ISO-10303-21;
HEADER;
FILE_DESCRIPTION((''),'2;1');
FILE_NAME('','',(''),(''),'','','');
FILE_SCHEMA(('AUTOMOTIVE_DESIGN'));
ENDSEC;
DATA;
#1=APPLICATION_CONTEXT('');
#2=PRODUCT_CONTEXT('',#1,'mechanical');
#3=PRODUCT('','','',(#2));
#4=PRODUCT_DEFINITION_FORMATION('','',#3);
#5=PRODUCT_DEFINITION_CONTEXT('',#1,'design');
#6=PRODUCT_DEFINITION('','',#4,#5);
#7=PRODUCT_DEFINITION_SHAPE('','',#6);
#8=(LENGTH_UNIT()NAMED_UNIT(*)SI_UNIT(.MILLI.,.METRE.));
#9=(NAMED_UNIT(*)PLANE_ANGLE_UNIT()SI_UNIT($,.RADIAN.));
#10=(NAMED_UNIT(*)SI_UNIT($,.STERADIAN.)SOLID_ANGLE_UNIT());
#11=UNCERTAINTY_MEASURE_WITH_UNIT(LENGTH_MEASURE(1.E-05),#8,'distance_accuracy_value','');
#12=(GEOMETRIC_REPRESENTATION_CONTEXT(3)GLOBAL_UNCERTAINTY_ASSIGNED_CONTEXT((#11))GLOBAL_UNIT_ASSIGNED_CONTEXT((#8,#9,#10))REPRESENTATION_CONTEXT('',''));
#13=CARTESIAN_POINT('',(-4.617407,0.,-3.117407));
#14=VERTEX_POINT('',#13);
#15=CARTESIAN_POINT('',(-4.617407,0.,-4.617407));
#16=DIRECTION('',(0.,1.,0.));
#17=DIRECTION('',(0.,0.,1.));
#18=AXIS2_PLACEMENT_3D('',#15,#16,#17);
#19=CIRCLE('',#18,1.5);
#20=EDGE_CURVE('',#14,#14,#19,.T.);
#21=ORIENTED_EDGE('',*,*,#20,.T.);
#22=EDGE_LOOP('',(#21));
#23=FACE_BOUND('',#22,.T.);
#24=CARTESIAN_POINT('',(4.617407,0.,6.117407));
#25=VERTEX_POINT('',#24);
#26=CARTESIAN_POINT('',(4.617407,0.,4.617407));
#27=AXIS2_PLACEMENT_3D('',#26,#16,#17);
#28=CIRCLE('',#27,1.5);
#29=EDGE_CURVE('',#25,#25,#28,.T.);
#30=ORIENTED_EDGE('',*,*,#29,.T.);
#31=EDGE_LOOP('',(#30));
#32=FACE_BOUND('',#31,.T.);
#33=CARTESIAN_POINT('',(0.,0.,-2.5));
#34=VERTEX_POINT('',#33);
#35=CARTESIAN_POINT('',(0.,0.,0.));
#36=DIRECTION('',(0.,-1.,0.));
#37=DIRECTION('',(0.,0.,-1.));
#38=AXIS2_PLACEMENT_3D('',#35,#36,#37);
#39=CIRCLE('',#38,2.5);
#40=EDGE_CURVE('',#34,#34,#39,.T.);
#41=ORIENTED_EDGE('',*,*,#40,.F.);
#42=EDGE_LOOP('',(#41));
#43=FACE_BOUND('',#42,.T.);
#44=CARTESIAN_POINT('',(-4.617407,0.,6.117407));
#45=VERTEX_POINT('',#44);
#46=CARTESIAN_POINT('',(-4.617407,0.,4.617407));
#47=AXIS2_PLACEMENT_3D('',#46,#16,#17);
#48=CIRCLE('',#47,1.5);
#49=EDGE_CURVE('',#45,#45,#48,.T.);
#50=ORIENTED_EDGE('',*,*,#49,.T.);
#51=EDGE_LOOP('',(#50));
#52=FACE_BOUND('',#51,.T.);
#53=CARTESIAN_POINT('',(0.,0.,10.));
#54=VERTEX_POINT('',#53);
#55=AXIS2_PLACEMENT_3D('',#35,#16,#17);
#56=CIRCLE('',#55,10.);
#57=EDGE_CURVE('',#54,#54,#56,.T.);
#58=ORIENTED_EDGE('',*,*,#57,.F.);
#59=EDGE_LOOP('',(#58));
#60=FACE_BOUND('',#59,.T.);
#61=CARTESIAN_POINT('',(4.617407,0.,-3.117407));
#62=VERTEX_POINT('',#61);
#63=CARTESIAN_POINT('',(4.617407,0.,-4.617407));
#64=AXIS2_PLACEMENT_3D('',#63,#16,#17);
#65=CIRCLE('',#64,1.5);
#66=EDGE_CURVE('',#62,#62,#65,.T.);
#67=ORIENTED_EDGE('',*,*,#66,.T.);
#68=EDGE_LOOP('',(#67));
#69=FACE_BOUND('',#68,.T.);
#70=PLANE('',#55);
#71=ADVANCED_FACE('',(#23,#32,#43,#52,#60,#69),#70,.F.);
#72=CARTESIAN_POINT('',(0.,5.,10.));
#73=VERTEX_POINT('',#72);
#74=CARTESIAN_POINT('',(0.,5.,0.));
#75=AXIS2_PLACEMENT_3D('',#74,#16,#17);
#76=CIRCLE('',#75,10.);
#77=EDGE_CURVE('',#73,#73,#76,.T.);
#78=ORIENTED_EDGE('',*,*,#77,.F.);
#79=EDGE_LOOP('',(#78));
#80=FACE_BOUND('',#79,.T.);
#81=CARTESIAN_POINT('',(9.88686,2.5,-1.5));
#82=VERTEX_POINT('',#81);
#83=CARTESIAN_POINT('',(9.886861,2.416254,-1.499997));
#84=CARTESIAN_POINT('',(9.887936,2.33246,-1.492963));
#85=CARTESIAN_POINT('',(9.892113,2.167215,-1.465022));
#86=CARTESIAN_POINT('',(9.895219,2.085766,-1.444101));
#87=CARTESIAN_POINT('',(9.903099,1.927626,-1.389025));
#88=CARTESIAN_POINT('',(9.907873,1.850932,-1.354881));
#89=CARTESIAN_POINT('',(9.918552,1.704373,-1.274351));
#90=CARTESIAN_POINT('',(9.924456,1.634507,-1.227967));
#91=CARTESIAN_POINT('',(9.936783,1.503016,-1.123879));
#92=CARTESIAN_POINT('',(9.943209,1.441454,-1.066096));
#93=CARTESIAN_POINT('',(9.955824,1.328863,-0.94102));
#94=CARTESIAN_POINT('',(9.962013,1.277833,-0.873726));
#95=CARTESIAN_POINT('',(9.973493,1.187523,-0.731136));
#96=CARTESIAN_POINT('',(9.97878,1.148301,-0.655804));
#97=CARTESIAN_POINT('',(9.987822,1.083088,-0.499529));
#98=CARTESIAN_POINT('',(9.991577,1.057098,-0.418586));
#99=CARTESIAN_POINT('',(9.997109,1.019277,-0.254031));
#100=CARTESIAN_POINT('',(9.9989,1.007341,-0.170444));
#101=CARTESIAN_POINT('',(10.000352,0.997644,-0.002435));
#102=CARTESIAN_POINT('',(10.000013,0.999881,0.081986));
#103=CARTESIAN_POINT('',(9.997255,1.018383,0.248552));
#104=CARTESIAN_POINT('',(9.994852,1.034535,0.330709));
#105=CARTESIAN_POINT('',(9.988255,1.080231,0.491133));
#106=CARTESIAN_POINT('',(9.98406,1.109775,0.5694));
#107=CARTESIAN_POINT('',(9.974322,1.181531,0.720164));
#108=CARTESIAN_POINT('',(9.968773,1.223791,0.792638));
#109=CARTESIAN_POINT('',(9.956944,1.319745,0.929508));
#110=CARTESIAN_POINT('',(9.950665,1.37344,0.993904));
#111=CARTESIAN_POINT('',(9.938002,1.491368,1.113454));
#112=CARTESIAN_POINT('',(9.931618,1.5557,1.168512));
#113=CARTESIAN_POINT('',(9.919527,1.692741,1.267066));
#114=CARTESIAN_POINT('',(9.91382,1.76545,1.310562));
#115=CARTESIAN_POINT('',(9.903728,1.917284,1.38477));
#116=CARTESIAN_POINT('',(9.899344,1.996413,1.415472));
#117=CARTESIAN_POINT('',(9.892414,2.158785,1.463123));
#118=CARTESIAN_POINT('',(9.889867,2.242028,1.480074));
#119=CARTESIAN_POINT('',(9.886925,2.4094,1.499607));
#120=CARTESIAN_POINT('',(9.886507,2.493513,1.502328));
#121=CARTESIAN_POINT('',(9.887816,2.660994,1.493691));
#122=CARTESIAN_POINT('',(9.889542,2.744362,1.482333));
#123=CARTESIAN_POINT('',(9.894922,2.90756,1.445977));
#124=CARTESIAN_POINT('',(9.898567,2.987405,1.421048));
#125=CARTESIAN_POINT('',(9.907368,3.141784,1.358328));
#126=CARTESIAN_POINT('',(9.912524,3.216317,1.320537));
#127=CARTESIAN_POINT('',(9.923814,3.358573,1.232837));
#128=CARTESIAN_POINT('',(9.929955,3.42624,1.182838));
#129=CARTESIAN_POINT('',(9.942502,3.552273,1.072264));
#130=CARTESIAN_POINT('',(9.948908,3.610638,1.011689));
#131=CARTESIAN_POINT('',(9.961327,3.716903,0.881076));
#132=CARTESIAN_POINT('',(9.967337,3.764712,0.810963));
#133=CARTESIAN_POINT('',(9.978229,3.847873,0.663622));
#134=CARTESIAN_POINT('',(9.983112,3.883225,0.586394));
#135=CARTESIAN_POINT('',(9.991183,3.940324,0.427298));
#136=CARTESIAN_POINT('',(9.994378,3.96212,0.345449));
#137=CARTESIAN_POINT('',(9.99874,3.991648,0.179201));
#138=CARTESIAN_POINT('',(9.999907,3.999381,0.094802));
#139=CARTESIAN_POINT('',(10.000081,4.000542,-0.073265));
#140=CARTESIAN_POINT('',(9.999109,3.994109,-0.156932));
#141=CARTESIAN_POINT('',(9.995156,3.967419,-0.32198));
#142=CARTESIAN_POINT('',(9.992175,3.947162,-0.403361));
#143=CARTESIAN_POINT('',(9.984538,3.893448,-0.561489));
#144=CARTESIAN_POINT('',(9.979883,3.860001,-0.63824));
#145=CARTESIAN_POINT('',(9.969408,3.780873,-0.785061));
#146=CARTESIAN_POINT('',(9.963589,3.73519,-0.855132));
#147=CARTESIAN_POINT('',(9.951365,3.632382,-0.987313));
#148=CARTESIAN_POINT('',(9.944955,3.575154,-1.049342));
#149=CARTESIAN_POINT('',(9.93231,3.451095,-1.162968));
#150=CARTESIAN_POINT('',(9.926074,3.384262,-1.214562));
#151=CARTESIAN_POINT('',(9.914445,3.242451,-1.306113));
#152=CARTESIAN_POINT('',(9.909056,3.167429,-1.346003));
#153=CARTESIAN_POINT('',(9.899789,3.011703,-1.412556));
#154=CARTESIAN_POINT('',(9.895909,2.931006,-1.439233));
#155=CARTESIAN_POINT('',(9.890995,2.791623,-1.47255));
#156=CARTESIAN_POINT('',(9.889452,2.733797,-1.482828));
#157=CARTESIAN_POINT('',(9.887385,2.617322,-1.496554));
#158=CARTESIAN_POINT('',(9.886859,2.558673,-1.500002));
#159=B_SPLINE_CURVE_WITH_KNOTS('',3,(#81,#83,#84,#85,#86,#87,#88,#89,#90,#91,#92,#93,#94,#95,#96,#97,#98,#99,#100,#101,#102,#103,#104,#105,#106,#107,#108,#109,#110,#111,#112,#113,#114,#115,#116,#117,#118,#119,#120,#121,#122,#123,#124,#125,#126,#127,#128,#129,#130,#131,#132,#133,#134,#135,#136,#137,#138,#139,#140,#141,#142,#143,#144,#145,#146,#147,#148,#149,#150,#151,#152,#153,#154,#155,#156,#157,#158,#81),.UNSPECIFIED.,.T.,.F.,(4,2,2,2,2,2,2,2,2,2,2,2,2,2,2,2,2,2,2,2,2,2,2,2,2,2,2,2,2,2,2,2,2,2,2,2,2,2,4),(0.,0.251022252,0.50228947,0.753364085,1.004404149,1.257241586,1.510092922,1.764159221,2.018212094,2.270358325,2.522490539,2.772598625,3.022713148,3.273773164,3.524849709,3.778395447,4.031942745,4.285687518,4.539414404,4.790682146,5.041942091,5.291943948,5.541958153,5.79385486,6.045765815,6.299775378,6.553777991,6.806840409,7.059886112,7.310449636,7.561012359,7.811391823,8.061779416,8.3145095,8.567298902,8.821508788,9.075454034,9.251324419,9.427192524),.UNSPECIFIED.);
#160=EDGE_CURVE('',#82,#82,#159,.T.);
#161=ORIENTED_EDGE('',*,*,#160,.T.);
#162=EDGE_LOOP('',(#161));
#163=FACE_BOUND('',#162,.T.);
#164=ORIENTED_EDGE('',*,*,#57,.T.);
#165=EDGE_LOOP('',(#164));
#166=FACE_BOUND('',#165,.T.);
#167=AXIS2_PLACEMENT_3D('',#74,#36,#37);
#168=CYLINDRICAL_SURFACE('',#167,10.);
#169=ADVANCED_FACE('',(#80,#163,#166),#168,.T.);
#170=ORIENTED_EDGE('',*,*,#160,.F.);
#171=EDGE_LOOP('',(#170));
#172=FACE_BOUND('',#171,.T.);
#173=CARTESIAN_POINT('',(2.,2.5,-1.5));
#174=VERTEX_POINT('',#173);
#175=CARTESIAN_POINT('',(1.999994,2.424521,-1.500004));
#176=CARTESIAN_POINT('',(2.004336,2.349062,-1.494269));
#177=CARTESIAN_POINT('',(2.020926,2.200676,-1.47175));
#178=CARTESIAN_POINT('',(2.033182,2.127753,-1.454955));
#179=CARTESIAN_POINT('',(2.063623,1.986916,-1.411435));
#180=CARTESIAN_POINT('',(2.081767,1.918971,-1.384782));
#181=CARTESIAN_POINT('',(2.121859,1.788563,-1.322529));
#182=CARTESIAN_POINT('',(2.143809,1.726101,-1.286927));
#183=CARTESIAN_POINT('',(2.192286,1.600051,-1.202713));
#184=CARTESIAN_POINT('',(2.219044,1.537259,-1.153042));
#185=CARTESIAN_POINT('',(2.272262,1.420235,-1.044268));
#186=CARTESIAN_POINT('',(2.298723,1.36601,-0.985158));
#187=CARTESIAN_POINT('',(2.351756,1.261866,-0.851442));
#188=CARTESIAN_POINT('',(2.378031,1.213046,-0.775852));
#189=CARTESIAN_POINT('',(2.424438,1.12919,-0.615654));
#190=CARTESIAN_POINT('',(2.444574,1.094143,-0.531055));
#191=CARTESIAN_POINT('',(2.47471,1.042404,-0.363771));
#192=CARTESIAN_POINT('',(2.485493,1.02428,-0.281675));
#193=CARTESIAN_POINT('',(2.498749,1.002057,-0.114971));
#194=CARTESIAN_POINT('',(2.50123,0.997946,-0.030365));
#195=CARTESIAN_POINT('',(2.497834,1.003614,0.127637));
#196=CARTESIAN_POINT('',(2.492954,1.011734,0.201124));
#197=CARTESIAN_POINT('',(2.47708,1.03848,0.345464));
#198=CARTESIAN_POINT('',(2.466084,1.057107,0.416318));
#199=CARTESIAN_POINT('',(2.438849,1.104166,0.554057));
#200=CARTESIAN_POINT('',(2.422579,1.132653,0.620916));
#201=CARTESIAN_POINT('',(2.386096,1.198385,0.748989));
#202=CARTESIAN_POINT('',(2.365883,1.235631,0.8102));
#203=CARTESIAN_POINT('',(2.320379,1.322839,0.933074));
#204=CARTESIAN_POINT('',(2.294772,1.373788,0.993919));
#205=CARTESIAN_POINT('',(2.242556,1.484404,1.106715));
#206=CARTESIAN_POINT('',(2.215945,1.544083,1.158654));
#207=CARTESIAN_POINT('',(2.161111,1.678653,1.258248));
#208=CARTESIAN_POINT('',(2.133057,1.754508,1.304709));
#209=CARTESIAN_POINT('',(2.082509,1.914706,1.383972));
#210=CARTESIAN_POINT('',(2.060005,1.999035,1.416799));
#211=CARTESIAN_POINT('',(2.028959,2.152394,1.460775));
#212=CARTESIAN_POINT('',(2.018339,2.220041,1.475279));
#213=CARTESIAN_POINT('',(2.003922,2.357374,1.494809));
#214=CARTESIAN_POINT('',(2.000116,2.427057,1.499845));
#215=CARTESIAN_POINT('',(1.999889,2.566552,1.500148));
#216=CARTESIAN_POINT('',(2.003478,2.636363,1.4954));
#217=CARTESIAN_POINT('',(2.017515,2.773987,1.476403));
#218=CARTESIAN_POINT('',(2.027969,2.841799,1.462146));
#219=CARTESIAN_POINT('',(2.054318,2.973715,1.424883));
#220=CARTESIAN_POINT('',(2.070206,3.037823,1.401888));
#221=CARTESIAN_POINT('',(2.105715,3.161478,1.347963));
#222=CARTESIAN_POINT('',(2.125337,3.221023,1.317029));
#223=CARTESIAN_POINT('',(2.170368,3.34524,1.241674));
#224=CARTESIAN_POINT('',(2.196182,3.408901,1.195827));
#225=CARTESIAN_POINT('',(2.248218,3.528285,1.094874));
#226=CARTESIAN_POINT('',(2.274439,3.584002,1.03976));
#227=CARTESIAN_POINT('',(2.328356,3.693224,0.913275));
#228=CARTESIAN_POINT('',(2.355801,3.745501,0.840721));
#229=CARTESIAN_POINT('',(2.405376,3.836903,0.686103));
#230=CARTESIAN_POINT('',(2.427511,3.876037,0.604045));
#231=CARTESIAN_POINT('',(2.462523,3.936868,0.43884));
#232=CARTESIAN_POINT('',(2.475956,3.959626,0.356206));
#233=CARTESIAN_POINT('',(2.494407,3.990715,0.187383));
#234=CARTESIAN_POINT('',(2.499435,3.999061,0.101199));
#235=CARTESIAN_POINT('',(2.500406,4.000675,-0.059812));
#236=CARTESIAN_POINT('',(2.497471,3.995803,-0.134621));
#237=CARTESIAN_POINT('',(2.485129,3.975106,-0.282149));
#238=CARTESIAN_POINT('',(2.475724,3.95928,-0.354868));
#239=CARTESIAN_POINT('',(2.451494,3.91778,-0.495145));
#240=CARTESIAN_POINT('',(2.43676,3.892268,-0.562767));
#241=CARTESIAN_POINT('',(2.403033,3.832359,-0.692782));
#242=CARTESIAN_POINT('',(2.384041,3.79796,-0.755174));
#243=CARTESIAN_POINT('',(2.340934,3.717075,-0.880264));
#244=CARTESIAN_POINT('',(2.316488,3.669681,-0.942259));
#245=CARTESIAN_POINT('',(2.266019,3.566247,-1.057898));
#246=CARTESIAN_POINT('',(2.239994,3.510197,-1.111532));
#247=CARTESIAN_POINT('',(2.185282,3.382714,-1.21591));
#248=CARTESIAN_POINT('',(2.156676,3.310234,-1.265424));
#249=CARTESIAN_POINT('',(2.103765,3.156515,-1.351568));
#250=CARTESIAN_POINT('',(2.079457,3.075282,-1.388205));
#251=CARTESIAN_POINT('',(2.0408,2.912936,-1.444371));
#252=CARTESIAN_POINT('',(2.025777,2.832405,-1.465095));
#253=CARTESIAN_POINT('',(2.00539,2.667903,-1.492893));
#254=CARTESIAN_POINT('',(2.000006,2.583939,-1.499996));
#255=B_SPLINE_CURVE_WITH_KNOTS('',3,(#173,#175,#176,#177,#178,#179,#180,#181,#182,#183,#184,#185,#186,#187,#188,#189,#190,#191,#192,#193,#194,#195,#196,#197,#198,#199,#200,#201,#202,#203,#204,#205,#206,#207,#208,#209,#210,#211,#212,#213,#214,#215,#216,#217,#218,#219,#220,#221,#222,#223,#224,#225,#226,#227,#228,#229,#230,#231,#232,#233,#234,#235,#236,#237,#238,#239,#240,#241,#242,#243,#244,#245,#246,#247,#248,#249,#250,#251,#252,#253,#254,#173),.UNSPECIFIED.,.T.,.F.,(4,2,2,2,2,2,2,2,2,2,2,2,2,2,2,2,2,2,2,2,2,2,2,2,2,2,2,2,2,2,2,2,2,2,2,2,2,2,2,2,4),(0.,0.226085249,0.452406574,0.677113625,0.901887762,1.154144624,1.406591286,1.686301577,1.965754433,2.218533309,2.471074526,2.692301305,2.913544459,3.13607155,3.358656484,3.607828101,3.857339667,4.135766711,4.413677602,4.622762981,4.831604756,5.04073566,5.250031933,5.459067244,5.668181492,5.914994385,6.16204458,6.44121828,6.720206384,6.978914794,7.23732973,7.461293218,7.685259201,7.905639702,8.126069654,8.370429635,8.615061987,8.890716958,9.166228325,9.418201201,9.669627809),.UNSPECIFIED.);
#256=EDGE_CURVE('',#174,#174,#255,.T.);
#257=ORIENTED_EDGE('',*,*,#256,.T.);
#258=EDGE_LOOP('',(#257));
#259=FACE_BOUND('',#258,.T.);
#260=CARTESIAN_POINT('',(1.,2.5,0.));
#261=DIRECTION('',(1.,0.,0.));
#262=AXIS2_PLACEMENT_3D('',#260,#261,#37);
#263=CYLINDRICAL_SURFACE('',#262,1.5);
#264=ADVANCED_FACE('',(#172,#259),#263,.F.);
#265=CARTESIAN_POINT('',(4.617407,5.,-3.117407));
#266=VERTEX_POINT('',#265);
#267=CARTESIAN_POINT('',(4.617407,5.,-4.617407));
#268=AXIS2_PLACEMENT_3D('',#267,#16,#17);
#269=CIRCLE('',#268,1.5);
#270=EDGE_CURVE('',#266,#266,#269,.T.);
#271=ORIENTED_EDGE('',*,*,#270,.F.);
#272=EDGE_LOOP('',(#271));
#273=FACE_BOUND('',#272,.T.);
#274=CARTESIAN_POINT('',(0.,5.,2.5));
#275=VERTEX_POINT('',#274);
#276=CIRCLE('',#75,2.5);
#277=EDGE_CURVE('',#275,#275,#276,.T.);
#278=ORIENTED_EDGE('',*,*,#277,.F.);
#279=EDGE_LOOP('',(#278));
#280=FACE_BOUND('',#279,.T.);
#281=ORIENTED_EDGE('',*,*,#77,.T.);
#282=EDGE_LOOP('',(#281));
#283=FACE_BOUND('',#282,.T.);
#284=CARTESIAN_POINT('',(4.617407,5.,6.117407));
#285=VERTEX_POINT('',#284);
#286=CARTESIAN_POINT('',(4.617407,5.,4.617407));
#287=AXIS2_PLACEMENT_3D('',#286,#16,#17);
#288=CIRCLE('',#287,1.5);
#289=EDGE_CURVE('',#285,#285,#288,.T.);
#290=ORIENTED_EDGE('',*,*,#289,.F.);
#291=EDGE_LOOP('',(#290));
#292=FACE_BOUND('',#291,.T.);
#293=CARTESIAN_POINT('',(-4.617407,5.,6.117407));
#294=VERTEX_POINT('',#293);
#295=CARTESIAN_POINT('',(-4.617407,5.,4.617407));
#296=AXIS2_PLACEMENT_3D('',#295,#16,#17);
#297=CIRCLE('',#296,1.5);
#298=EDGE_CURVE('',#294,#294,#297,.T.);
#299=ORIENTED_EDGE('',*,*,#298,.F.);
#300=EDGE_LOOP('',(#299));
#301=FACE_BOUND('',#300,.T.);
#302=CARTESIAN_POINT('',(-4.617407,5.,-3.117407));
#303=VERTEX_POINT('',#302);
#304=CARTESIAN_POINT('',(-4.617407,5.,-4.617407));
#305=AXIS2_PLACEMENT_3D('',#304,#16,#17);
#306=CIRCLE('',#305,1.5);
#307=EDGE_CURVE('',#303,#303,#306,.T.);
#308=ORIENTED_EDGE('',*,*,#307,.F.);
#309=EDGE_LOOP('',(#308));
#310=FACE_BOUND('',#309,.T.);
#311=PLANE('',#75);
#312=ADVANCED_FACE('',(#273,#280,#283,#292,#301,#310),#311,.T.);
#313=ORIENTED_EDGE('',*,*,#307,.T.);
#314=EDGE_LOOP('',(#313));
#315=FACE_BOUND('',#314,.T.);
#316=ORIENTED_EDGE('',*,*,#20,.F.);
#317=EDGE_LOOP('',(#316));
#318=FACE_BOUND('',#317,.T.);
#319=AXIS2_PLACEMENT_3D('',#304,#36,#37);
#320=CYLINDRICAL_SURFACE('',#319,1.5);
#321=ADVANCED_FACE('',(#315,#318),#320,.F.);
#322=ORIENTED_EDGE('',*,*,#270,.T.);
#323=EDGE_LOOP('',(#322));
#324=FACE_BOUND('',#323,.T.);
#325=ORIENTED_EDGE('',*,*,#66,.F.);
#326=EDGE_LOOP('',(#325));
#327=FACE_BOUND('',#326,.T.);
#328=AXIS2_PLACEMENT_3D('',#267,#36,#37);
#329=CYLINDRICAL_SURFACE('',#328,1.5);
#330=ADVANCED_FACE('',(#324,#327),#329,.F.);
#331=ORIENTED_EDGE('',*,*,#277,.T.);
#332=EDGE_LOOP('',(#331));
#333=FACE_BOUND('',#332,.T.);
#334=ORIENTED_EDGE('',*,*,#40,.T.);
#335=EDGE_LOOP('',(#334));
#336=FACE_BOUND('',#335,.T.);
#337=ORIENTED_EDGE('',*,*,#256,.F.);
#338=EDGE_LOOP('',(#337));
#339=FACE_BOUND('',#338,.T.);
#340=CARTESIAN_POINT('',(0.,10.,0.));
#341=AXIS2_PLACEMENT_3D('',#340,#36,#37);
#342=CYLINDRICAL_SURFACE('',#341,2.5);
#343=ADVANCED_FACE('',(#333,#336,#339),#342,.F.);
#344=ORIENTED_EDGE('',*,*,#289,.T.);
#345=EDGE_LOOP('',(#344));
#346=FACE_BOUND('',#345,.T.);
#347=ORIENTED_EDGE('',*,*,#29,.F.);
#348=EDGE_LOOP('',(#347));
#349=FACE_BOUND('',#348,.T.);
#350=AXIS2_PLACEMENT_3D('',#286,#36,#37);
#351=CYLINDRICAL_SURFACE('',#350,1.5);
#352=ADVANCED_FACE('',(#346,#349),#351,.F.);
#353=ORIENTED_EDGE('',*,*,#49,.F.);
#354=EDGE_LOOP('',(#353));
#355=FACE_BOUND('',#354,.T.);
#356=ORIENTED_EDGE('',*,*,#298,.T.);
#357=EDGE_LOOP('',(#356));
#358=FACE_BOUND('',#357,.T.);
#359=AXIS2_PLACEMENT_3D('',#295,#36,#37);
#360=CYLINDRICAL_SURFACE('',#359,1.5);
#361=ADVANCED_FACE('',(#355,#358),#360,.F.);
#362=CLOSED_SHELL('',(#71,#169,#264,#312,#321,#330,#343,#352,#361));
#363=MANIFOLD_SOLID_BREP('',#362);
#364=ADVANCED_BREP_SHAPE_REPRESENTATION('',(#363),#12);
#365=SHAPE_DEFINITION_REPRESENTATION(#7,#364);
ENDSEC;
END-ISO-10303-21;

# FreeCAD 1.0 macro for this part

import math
import FreeCAD as App
import Part
import Sketcher
Q = App.Units.Quantity

doc = App.newDocument("Part")
params = doc.addObject("Spreadsheet::Sheet", "Params")
for row, (alias, value) in enumerate([
    ("sketch1_diameter", "3 mm"),
    ("sketch1_radius", "10 mm"),
    ("sketch1_radius2", "2 mm"),
    ("pad1_length", "5 mm"),
    ("sketch2_diameter", "3 mm"),
    ("pocket1_length", "9 mm"),
    ("sketch3_diameter", "5 mm"),
    ("pocket2_length", "10 mm"),
], start=1):
    params.set(f"A{row}", alias)
    params.set(f"B{row}", "=" + value)
    params.setAlias(f"B{row}", alias)

body = doc.addObject("PartDesign::Body", "Body")

sketch1 = body.newObject("Sketcher::SketchObject", "Sketch")
sketch1.AttachmentSupport = (doc.getObject("XZ_Plane"), [""])
sketch1.MapMode = "FlatFace"
sketch1.addGeometry([
    Part.ArcOfCircle(Part.Circle(App.Vector(0, 0, 0), App.Vector(0, 0, 1), 10), math.radians(-90), math.radians(-45)),
    Part.ArcOfCircle(Part.Circle(App.Vector(0, 0, 0), App.Vector(0, 0, 1), 10), math.radians(0), math.radians(270)),
    Part.ArcOfCircle(Part.Circle(App.Vector(0, 0, 0), App.Vector(0, 0, 1), 10), math.radians(-45), math.radians(0)),
    Part.ArcOfCircle(Part.Circle(App.Vector(0, 0, 0), App.Vector(0, 0, 1), 2), math.radians(-90), math.radians(-45)),
    Part.ArcOfCircle(Part.Circle(App.Vector(0, 0, 0), App.Vector(0, 0, 1), 2), math.radians(-45), math.radians(0)),
    Part.ArcOfCircle(Part.Circle(App.Vector(0, 0, 0), App.Vector(0, 0, 1), 2), math.radians(0), math.radians(270)),
    Part.ArcOfCircle(Part.Circle(App.Vector(4.6, -4.6, 0), App.Vector(0, 0, 1), 1.5), math.radians(135), math.radians(315)),
    Part.ArcOfCircle(Part.Circle(App.Vector(4.6, -4.6, 0), App.Vector(0, 0, 1), 1.5), math.radians(-45), math.radians(0)),
    Part.ArcOfCircle(Part.Circle(App.Vector(4.6, -4.6, 0), App.Vector(0, 0, 1), 1.5), math.radians(0), math.radians(135)),
    Part.Circle(App.Vector(-4.6, -4.6, 0), App.Vector(0, 0, 1), 1.5),
    Part.Circle(App.Vector(4.6, 4.6, 0), App.Vector(0, 0, 1), 1.5),
    Part.Circle(App.Vector(-4.6, 4.6, 0), App.Vector(0, 0, 1), 1.5),
], False)
sketch1.addConstraint([
    Sketcher.Constraint("Tangent", 0, 1, 1, 2),
    Sketcher.Constraint("Tangent", 1, 1, 2, 2),
    Sketcher.Constraint("Tangent", 2, 1, 0, 2),
    Sketcher.Constraint("Tangent", 3, 2, 4, 1),
    Sketcher.Constraint("Tangent", 4, 2, 5, 1),
    Sketcher.Constraint("Tangent", 5, 2, 3, 1),
    Sketcher.Constraint("Tangent", 6, 2, 7, 1),
    Sketcher.Constraint("Tangent", 7, 2, 8, 1),
    Sketcher.Constraint("Tangent", 8, 2, 6, 1),
    Sketcher.Constraint("Coincident", 0, 3, -1, 1),
    Sketcher.Constraint("Coincident", 3, 3, -1, 1),
    Sketcher.Constraint("Equal", 8, 9),
    Sketcher.Constraint("Equal", 9, 10),
    Sketcher.Constraint("Equal", 10, 11),
    Sketcher.Constraint("Symmetric", 9, 3, 10, 3, -1, 1),
    Sketcher.Constraint("Symmetric", 6, 3, 11, 3, -1, 1),
    Sketcher.Constraint("Symmetric", 6, 3, 9, 3, -2),
    Sketcher.Constraint("PointOnObject", 0, 1, -2),
    Sketcher.Constraint("PointOnObject", 1, 1, -1),
    Sketcher.Constraint("PointOnObject", 4, 2, -1),
    Sketcher.Constraint("PointOnObject", 5, 2, -2),
    Sketcher.Constraint("Horizontal", 9, 3, 7, 2),
    Sketcher.Constraint("Diameter", 9, Q("3 mm")),
    Sketcher.Constraint("Radius", 0, Q("10 mm")),
    Sketcher.Constraint("Radius", 3, Q("2 mm")),
    Sketcher.Constraint("DistanceX", 6, 2, 2, 1, Q("1.393 mm")),
    Sketcher.Constraint("DistanceY", 2, 1, 6, 2, Q("1.393 mm")),
    Sketcher.Constraint("DistanceX", 7, 3, 2, 1, Q("2.453661 mm")),
    Sketcher.Constraint("DistanceX", 8, 2, 6, 3, Q("1.06066 mm")),
    Sketcher.Constraint("DistanceX", -1, 1, 6, 3, Q("4.617407 mm")),
    Sketcher.Constraint("DistanceX", -1, 1, 3, 2, Q("1.414214 mm")),
])
sketch1.setExpression("Constraints[22]", "Params.sketch1_diameter")
sketch1.setExpression("Constraints[23]", "Params.sketch1_radius")
sketch1.setExpression("Constraints[24]", "Params.sketch1_radius2")
pad1 = body.newObject("PartDesign::Pad", "Pad")
pad1.Profile = sketch1
pad1.setExpression("Length", "Params.pad1_length")
pad1.Reversed = True

sketch2 = body.newObject("Sketcher::SketchObject", "Sketch001")
sketch2.AttachmentSupport = (doc.getObject("YZ_Plane"), [""])
sketch2.MapMode = "FlatFace"
sketch2.AttachmentOffset = App.Placement(App.Vector(0, 0, 10), App.Rotation())
sketch2.addGeometry(Part.Circle(App.Vector(2.5, 0, 0), App.Vector(0, 0, 1), 1.5), False)
sketch2.addConstraint([
    Sketcher.Constraint("PointOnObject", 0, 3, -1),
    Sketcher.Constraint("Diameter", 0, Q("3 mm")),
    Sketcher.Constraint("DistanceX", -1, 1, 0, 3, Q("2.5 mm")),
])
sketch2.setExpression("Constraints[1]", "Params.sketch2_diameter")
pocket1 = body.newObject("PartDesign::Pocket", "Pocket")
pocket1.Profile = sketch2
pocket1.setExpression("Length", "Params.pocket1_length")

sketch3 = body.newObject("Sketcher::SketchObject", "Sketch002")
sketch3.AttachmentSupport = (doc.getObject("XZ_Plane"), [""])
sketch3.MapMode = "FlatFace"
sketch3.addGeometry(Part.Circle(App.Vector(0, 0, 0), App.Vector(0, 0, 1), 2.5), False)
sketch3.addConstraint([
    Sketcher.Constraint("Coincident", 0, 3, -1, 1),
    Sketcher.Constraint("Diameter", 0, Q("5 mm")),
])
sketch3.setExpression("Constraints[1]", "Params.sketch3_diameter")
pocket2 = body.newObject("PartDesign::Pocket", "Pocket001")
pocket2.Profile = sketch3
pocket2.setExpression("Length", "Params.pocket2_length")

doc.recompute()
